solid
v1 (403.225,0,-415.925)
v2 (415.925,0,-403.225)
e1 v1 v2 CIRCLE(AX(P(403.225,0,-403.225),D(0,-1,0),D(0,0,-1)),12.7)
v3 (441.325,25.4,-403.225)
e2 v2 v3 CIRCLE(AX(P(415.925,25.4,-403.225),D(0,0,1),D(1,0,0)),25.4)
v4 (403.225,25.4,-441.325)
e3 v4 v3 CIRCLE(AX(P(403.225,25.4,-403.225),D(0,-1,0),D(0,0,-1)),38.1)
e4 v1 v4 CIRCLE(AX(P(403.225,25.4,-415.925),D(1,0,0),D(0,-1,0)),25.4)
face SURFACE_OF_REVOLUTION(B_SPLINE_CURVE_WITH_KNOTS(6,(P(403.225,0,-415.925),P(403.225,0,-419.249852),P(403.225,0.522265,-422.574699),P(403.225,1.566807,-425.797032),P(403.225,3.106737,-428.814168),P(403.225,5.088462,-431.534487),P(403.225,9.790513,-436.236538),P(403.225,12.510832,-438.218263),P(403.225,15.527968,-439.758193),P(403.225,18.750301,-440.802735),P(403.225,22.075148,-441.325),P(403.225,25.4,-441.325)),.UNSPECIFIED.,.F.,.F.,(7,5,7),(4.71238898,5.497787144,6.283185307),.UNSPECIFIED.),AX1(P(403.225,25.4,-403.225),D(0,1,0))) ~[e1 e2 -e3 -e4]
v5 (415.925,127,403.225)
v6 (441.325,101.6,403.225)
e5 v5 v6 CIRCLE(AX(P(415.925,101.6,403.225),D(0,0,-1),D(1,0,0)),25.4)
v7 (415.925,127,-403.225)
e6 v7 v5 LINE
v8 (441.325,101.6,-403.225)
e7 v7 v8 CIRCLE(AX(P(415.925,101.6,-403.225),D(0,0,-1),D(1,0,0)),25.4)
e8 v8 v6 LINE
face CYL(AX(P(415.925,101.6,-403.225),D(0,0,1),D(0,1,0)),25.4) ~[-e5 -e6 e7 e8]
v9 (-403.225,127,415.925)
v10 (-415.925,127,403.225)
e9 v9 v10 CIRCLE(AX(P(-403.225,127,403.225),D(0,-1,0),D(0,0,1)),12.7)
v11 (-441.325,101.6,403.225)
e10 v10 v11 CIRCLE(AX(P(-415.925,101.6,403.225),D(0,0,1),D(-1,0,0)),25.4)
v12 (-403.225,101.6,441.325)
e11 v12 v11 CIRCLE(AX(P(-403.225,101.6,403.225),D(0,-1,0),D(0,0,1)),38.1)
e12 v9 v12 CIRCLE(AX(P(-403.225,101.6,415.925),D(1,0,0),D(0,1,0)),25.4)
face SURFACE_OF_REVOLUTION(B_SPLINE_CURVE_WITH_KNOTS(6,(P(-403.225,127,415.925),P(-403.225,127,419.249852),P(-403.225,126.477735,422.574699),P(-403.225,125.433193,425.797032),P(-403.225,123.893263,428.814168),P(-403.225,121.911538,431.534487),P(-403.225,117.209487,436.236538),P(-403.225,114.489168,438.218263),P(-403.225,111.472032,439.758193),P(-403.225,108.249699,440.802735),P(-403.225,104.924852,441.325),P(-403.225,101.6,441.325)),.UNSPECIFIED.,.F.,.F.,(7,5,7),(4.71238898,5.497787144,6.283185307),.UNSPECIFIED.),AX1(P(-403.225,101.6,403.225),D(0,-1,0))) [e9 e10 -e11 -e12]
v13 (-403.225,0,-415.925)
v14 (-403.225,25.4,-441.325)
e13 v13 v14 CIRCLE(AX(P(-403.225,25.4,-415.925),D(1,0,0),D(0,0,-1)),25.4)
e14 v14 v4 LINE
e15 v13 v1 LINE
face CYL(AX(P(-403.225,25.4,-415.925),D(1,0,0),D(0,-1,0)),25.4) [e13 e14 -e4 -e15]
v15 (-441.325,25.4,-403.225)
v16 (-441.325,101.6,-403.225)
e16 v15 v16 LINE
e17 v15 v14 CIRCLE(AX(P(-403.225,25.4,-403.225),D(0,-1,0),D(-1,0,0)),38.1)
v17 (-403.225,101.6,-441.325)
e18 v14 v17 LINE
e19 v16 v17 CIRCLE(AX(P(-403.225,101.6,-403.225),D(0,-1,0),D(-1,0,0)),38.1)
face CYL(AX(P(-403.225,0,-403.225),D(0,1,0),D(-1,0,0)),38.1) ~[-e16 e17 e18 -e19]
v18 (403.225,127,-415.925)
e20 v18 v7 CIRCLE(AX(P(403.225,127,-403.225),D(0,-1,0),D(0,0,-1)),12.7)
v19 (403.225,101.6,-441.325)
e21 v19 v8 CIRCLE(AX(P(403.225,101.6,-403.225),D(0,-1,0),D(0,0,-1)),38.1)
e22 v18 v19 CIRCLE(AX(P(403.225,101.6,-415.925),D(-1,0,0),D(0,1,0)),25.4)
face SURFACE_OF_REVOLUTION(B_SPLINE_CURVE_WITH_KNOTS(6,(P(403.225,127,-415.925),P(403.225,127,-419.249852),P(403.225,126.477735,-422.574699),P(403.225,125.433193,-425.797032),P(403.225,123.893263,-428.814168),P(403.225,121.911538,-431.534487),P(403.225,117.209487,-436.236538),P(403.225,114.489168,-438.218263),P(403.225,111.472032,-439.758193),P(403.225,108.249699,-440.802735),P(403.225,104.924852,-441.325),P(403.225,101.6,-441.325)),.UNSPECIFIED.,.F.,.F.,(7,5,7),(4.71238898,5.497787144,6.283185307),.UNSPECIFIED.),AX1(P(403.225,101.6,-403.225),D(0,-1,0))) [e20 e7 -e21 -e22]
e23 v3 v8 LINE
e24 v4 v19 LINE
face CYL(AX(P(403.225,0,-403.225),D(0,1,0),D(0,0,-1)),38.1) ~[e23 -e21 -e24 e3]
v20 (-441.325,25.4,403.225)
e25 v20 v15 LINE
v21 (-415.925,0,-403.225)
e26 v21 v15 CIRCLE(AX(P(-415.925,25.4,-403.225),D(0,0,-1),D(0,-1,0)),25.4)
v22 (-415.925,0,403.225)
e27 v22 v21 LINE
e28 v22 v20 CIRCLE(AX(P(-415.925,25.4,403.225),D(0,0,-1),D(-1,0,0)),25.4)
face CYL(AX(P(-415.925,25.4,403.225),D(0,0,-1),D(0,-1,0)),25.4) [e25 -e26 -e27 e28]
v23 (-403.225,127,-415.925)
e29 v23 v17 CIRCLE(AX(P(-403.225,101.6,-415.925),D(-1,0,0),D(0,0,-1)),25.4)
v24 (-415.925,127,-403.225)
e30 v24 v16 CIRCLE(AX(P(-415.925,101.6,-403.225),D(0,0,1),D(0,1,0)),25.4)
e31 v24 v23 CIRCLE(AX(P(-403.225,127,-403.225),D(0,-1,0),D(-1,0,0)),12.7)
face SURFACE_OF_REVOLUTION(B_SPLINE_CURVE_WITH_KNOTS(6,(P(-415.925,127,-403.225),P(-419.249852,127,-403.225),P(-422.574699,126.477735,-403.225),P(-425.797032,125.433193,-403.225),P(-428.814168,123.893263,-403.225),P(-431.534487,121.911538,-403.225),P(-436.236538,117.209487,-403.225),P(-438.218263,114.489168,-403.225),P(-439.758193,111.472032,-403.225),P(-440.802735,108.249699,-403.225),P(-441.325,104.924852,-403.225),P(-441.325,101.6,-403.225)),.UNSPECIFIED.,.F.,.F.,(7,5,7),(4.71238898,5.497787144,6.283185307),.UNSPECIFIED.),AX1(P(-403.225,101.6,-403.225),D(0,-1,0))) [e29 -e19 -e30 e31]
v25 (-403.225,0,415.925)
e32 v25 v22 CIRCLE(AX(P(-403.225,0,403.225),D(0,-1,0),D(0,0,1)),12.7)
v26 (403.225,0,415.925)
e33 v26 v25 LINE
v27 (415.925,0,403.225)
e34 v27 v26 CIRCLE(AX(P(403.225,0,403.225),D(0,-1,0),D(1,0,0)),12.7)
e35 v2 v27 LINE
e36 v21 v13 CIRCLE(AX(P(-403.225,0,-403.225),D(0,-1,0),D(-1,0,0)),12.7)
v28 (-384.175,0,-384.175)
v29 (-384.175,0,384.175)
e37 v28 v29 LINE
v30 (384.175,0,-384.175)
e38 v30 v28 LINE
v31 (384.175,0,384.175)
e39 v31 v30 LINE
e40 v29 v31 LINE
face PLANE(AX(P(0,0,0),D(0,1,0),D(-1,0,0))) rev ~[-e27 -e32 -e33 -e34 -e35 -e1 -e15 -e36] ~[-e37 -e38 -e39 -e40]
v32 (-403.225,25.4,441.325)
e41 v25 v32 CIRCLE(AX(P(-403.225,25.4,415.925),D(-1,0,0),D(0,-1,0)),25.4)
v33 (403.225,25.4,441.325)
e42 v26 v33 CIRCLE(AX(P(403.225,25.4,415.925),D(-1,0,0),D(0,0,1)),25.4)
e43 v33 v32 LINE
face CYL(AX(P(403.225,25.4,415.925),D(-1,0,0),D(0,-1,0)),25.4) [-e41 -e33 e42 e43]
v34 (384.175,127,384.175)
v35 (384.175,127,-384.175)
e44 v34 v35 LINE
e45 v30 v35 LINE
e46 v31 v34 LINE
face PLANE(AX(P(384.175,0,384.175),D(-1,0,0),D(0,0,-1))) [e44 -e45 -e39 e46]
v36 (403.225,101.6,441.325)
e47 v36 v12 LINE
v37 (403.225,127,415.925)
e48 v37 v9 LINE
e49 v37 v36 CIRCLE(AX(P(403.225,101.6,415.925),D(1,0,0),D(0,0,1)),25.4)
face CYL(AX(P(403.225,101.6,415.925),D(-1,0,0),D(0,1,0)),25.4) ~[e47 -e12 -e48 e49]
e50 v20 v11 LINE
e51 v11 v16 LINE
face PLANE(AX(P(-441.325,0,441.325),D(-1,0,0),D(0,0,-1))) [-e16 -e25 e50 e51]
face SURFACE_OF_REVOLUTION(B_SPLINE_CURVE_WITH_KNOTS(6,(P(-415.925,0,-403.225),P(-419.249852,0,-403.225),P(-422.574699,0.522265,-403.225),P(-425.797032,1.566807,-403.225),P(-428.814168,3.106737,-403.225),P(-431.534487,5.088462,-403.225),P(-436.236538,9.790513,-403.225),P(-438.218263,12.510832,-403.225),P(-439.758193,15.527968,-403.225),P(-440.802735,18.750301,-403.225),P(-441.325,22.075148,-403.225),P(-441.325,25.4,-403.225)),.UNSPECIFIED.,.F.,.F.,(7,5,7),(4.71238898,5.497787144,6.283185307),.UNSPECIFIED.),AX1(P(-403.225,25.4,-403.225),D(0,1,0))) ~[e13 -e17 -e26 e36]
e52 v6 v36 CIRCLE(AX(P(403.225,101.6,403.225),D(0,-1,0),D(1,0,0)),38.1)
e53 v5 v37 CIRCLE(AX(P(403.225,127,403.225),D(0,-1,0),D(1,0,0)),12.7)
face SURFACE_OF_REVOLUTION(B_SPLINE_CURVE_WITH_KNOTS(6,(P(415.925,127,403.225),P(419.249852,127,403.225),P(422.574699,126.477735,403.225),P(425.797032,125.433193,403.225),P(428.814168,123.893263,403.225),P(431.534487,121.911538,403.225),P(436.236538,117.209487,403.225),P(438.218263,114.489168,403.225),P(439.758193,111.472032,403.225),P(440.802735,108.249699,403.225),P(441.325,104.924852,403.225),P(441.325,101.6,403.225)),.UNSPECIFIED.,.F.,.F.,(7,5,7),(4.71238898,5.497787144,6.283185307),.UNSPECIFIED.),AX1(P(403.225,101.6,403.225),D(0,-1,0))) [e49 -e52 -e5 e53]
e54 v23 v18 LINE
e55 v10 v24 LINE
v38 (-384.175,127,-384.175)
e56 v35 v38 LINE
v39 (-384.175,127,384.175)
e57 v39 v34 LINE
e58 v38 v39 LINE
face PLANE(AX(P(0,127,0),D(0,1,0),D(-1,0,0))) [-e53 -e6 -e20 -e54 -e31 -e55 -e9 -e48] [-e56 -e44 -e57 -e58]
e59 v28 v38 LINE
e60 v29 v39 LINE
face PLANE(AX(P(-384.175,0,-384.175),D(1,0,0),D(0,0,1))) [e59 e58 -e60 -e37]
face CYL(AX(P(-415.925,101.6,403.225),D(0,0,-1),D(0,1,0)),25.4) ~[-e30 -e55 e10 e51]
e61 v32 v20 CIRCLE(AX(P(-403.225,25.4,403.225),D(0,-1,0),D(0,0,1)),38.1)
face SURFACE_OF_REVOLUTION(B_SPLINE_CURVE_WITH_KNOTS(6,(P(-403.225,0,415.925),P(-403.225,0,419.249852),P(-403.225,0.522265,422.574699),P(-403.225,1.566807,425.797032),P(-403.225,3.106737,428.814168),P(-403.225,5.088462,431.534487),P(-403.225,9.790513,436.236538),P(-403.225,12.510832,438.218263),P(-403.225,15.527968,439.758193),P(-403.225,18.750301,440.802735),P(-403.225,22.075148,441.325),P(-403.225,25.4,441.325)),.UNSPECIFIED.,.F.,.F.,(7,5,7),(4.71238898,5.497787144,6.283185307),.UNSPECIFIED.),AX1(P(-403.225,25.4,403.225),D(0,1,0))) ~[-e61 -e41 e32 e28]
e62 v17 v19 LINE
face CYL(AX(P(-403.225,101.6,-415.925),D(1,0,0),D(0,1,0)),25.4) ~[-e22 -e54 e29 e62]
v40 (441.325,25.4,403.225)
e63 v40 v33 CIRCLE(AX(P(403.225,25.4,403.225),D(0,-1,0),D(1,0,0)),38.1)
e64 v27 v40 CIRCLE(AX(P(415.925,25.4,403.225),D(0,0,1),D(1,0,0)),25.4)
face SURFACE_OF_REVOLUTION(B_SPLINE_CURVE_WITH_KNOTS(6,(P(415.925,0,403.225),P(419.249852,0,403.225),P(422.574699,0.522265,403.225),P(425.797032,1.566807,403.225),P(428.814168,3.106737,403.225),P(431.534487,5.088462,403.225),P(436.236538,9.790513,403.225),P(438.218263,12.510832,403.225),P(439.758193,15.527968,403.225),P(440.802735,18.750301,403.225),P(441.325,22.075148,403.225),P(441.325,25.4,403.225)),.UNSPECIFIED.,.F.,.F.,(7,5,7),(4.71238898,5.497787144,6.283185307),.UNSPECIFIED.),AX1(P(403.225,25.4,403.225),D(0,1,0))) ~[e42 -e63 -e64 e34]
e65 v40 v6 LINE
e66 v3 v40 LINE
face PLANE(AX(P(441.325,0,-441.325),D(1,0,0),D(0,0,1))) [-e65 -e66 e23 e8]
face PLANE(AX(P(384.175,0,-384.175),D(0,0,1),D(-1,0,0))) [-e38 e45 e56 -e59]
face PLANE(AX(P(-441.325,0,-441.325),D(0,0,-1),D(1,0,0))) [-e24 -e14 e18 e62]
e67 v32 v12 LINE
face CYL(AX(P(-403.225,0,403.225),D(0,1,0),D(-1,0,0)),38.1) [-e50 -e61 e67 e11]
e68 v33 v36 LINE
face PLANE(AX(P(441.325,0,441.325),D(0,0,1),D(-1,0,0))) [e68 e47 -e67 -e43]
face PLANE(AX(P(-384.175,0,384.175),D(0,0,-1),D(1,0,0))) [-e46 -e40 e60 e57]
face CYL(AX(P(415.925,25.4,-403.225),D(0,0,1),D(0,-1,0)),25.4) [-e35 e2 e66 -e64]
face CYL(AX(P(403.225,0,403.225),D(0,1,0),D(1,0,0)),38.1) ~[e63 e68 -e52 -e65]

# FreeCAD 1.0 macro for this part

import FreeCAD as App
import Part
import Sketcher
Q = App.Units.Quantity


def edges_at(feature, points):
    """Names of the edges that pass closest to the given points."""
    edges = feature.Shape.Edges
    near = lambda p: min(range(len(edges)), key=lambda i: edges[i].distToShape(Part.Vertex(*p))[0])
    return sorted({f"Edge{near(p) + 1}" for p in points})

doc = App.newDocument("Part")
body = doc.addObject("PartDesign::Body", "Body")

# Sketch on XZ plane
sketch1 = body.newObject("Sketcher::SketchObject", "Sketch")
sketch1.AttachmentSupport = (doc.getObject("XZ_Plane"), [""])
sketch1.MapMode = "FlatFace"
sketch1.addGeometry([
    Part.LineSegment(App.Vector(-441.325, -441.325, 0), App.Vector(-441.325, 441.325, 0)),  # 0
    Part.LineSegment(App.Vector(-441.325, 441.325, 0), App.Vector(441.325, 441.325, 0)),  # 1
    Part.LineSegment(App.Vector(441.325, 441.325, 0), App.Vector(441.325, -441.325, 0)),  # 2
    Part.LineSegment(App.Vector(441.325, -441.325, 0), App.Vector(-441.325, -441.325, 0)),  # 3
    Part.LineSegment(App.Vector(-384.175, -384.175, 0), App.Vector(384.175, -384.175, 0)),  # 4
    Part.LineSegment(App.Vector(384.175, -384.175, 0), App.Vector(384.175, 384.175, 0)),  # 5
    Part.LineSegment(App.Vector(384.175, 384.175, 0), App.Vector(-384.175, 384.175, 0)),  # 6
    Part.LineSegment(App.Vector(-384.175, 384.175, 0), App.Vector(-384.175, -384.175, 0)),  # 7
], False)
sketch1.addConstraint([
    Sketcher.Constraint("Coincident", 0, 2, 1, 1),
    Sketcher.Constraint("Coincident", 1, 2, 2, 1),
    Sketcher.Constraint("Coincident", 2, 2, 3, 1),
    Sketcher.Constraint("Coincident", 3, 2, 0, 1),
    Sketcher.Constraint("Coincident", 4, 2, 5, 1),
    Sketcher.Constraint("Coincident", 5, 2, 6, 1),
    Sketcher.Constraint("Coincident", 6, 2, 7, 1),
    Sketcher.Constraint("Coincident", 7, 2, 4, 1),
    Sketcher.Constraint("Vertical", 0),
    Sketcher.Constraint("Horizontal", 1),
    Sketcher.Constraint("Vertical", 2),
    Sketcher.Constraint("Horizontal", 3),
    Sketcher.Constraint("Horizontal", 4),
    Sketcher.Constraint("Vertical", 5),
    Sketcher.Constraint("Horizontal", 6),
    Sketcher.Constraint("Vertical", 7),
    Sketcher.Constraint("Symmetric", 0, 2, 2, 2, -1, 1),
    Sketcher.Constraint("Symmetric", 4, 2, 6, 2, -1, 1),
    Sketcher.Constraint("Equal", 3, 0),
    Sketcher.Constraint("Equal", 6, 5),
    Sketcher.Constraint("DistanceX", 4, 1, 4, 2, Q("30.25 in")),
    Sketcher.Constraint("DistanceX", 4, 2, 2, 2, Q("2.25 in")),
])
pad1 = body.newObject("PartDesign::Pad", "Pad")
pad1.Profile = sketch1
pad1.Length = Q("5 in")
pad1.Reversed = True
doc.recompute()

fillet = body.newObject("PartDesign::Fillet", "Fillet")
fillet.Base = (pad1, edges_at(pad1, [
    (-441.325, 63.5, 441.325),
    (441.325, 63.5, 441.325),
    (441.325, 63.5, -441.325),
    (-441.325, 63.5, -441.325),
]))
fillet.Radius = Q("1.5 in")
doc.recompute()

fillet2 = body.newObject("PartDesign::Fillet", "Fillet001")
fillet2.Base = (fillet, edges_at(fillet, [
    (430.166, 127, 430.166),
    (441.325, 127, 0),
    (430.166, 127, -430.166),
    (0, 127, -441.325),
    (-430.166, 127, -430.166),
    (-441.325, 127, 0),
    (-430.166, 127, 430.166),
    (0, 127, 441.325),
    (430.166, 0, 430.166),
    (441.325, 0, 0),
    (430.166, 0, -430.166),
    (0, 0, -441.325),
    (-430.166, 0, -430.166),
    (-441.325, 0, 0),
    (-430.166, 0, 430.166),
    (0, 0, 441.325),
]))
fillet2.Radius = Q("1 in")

doc.recompute()
